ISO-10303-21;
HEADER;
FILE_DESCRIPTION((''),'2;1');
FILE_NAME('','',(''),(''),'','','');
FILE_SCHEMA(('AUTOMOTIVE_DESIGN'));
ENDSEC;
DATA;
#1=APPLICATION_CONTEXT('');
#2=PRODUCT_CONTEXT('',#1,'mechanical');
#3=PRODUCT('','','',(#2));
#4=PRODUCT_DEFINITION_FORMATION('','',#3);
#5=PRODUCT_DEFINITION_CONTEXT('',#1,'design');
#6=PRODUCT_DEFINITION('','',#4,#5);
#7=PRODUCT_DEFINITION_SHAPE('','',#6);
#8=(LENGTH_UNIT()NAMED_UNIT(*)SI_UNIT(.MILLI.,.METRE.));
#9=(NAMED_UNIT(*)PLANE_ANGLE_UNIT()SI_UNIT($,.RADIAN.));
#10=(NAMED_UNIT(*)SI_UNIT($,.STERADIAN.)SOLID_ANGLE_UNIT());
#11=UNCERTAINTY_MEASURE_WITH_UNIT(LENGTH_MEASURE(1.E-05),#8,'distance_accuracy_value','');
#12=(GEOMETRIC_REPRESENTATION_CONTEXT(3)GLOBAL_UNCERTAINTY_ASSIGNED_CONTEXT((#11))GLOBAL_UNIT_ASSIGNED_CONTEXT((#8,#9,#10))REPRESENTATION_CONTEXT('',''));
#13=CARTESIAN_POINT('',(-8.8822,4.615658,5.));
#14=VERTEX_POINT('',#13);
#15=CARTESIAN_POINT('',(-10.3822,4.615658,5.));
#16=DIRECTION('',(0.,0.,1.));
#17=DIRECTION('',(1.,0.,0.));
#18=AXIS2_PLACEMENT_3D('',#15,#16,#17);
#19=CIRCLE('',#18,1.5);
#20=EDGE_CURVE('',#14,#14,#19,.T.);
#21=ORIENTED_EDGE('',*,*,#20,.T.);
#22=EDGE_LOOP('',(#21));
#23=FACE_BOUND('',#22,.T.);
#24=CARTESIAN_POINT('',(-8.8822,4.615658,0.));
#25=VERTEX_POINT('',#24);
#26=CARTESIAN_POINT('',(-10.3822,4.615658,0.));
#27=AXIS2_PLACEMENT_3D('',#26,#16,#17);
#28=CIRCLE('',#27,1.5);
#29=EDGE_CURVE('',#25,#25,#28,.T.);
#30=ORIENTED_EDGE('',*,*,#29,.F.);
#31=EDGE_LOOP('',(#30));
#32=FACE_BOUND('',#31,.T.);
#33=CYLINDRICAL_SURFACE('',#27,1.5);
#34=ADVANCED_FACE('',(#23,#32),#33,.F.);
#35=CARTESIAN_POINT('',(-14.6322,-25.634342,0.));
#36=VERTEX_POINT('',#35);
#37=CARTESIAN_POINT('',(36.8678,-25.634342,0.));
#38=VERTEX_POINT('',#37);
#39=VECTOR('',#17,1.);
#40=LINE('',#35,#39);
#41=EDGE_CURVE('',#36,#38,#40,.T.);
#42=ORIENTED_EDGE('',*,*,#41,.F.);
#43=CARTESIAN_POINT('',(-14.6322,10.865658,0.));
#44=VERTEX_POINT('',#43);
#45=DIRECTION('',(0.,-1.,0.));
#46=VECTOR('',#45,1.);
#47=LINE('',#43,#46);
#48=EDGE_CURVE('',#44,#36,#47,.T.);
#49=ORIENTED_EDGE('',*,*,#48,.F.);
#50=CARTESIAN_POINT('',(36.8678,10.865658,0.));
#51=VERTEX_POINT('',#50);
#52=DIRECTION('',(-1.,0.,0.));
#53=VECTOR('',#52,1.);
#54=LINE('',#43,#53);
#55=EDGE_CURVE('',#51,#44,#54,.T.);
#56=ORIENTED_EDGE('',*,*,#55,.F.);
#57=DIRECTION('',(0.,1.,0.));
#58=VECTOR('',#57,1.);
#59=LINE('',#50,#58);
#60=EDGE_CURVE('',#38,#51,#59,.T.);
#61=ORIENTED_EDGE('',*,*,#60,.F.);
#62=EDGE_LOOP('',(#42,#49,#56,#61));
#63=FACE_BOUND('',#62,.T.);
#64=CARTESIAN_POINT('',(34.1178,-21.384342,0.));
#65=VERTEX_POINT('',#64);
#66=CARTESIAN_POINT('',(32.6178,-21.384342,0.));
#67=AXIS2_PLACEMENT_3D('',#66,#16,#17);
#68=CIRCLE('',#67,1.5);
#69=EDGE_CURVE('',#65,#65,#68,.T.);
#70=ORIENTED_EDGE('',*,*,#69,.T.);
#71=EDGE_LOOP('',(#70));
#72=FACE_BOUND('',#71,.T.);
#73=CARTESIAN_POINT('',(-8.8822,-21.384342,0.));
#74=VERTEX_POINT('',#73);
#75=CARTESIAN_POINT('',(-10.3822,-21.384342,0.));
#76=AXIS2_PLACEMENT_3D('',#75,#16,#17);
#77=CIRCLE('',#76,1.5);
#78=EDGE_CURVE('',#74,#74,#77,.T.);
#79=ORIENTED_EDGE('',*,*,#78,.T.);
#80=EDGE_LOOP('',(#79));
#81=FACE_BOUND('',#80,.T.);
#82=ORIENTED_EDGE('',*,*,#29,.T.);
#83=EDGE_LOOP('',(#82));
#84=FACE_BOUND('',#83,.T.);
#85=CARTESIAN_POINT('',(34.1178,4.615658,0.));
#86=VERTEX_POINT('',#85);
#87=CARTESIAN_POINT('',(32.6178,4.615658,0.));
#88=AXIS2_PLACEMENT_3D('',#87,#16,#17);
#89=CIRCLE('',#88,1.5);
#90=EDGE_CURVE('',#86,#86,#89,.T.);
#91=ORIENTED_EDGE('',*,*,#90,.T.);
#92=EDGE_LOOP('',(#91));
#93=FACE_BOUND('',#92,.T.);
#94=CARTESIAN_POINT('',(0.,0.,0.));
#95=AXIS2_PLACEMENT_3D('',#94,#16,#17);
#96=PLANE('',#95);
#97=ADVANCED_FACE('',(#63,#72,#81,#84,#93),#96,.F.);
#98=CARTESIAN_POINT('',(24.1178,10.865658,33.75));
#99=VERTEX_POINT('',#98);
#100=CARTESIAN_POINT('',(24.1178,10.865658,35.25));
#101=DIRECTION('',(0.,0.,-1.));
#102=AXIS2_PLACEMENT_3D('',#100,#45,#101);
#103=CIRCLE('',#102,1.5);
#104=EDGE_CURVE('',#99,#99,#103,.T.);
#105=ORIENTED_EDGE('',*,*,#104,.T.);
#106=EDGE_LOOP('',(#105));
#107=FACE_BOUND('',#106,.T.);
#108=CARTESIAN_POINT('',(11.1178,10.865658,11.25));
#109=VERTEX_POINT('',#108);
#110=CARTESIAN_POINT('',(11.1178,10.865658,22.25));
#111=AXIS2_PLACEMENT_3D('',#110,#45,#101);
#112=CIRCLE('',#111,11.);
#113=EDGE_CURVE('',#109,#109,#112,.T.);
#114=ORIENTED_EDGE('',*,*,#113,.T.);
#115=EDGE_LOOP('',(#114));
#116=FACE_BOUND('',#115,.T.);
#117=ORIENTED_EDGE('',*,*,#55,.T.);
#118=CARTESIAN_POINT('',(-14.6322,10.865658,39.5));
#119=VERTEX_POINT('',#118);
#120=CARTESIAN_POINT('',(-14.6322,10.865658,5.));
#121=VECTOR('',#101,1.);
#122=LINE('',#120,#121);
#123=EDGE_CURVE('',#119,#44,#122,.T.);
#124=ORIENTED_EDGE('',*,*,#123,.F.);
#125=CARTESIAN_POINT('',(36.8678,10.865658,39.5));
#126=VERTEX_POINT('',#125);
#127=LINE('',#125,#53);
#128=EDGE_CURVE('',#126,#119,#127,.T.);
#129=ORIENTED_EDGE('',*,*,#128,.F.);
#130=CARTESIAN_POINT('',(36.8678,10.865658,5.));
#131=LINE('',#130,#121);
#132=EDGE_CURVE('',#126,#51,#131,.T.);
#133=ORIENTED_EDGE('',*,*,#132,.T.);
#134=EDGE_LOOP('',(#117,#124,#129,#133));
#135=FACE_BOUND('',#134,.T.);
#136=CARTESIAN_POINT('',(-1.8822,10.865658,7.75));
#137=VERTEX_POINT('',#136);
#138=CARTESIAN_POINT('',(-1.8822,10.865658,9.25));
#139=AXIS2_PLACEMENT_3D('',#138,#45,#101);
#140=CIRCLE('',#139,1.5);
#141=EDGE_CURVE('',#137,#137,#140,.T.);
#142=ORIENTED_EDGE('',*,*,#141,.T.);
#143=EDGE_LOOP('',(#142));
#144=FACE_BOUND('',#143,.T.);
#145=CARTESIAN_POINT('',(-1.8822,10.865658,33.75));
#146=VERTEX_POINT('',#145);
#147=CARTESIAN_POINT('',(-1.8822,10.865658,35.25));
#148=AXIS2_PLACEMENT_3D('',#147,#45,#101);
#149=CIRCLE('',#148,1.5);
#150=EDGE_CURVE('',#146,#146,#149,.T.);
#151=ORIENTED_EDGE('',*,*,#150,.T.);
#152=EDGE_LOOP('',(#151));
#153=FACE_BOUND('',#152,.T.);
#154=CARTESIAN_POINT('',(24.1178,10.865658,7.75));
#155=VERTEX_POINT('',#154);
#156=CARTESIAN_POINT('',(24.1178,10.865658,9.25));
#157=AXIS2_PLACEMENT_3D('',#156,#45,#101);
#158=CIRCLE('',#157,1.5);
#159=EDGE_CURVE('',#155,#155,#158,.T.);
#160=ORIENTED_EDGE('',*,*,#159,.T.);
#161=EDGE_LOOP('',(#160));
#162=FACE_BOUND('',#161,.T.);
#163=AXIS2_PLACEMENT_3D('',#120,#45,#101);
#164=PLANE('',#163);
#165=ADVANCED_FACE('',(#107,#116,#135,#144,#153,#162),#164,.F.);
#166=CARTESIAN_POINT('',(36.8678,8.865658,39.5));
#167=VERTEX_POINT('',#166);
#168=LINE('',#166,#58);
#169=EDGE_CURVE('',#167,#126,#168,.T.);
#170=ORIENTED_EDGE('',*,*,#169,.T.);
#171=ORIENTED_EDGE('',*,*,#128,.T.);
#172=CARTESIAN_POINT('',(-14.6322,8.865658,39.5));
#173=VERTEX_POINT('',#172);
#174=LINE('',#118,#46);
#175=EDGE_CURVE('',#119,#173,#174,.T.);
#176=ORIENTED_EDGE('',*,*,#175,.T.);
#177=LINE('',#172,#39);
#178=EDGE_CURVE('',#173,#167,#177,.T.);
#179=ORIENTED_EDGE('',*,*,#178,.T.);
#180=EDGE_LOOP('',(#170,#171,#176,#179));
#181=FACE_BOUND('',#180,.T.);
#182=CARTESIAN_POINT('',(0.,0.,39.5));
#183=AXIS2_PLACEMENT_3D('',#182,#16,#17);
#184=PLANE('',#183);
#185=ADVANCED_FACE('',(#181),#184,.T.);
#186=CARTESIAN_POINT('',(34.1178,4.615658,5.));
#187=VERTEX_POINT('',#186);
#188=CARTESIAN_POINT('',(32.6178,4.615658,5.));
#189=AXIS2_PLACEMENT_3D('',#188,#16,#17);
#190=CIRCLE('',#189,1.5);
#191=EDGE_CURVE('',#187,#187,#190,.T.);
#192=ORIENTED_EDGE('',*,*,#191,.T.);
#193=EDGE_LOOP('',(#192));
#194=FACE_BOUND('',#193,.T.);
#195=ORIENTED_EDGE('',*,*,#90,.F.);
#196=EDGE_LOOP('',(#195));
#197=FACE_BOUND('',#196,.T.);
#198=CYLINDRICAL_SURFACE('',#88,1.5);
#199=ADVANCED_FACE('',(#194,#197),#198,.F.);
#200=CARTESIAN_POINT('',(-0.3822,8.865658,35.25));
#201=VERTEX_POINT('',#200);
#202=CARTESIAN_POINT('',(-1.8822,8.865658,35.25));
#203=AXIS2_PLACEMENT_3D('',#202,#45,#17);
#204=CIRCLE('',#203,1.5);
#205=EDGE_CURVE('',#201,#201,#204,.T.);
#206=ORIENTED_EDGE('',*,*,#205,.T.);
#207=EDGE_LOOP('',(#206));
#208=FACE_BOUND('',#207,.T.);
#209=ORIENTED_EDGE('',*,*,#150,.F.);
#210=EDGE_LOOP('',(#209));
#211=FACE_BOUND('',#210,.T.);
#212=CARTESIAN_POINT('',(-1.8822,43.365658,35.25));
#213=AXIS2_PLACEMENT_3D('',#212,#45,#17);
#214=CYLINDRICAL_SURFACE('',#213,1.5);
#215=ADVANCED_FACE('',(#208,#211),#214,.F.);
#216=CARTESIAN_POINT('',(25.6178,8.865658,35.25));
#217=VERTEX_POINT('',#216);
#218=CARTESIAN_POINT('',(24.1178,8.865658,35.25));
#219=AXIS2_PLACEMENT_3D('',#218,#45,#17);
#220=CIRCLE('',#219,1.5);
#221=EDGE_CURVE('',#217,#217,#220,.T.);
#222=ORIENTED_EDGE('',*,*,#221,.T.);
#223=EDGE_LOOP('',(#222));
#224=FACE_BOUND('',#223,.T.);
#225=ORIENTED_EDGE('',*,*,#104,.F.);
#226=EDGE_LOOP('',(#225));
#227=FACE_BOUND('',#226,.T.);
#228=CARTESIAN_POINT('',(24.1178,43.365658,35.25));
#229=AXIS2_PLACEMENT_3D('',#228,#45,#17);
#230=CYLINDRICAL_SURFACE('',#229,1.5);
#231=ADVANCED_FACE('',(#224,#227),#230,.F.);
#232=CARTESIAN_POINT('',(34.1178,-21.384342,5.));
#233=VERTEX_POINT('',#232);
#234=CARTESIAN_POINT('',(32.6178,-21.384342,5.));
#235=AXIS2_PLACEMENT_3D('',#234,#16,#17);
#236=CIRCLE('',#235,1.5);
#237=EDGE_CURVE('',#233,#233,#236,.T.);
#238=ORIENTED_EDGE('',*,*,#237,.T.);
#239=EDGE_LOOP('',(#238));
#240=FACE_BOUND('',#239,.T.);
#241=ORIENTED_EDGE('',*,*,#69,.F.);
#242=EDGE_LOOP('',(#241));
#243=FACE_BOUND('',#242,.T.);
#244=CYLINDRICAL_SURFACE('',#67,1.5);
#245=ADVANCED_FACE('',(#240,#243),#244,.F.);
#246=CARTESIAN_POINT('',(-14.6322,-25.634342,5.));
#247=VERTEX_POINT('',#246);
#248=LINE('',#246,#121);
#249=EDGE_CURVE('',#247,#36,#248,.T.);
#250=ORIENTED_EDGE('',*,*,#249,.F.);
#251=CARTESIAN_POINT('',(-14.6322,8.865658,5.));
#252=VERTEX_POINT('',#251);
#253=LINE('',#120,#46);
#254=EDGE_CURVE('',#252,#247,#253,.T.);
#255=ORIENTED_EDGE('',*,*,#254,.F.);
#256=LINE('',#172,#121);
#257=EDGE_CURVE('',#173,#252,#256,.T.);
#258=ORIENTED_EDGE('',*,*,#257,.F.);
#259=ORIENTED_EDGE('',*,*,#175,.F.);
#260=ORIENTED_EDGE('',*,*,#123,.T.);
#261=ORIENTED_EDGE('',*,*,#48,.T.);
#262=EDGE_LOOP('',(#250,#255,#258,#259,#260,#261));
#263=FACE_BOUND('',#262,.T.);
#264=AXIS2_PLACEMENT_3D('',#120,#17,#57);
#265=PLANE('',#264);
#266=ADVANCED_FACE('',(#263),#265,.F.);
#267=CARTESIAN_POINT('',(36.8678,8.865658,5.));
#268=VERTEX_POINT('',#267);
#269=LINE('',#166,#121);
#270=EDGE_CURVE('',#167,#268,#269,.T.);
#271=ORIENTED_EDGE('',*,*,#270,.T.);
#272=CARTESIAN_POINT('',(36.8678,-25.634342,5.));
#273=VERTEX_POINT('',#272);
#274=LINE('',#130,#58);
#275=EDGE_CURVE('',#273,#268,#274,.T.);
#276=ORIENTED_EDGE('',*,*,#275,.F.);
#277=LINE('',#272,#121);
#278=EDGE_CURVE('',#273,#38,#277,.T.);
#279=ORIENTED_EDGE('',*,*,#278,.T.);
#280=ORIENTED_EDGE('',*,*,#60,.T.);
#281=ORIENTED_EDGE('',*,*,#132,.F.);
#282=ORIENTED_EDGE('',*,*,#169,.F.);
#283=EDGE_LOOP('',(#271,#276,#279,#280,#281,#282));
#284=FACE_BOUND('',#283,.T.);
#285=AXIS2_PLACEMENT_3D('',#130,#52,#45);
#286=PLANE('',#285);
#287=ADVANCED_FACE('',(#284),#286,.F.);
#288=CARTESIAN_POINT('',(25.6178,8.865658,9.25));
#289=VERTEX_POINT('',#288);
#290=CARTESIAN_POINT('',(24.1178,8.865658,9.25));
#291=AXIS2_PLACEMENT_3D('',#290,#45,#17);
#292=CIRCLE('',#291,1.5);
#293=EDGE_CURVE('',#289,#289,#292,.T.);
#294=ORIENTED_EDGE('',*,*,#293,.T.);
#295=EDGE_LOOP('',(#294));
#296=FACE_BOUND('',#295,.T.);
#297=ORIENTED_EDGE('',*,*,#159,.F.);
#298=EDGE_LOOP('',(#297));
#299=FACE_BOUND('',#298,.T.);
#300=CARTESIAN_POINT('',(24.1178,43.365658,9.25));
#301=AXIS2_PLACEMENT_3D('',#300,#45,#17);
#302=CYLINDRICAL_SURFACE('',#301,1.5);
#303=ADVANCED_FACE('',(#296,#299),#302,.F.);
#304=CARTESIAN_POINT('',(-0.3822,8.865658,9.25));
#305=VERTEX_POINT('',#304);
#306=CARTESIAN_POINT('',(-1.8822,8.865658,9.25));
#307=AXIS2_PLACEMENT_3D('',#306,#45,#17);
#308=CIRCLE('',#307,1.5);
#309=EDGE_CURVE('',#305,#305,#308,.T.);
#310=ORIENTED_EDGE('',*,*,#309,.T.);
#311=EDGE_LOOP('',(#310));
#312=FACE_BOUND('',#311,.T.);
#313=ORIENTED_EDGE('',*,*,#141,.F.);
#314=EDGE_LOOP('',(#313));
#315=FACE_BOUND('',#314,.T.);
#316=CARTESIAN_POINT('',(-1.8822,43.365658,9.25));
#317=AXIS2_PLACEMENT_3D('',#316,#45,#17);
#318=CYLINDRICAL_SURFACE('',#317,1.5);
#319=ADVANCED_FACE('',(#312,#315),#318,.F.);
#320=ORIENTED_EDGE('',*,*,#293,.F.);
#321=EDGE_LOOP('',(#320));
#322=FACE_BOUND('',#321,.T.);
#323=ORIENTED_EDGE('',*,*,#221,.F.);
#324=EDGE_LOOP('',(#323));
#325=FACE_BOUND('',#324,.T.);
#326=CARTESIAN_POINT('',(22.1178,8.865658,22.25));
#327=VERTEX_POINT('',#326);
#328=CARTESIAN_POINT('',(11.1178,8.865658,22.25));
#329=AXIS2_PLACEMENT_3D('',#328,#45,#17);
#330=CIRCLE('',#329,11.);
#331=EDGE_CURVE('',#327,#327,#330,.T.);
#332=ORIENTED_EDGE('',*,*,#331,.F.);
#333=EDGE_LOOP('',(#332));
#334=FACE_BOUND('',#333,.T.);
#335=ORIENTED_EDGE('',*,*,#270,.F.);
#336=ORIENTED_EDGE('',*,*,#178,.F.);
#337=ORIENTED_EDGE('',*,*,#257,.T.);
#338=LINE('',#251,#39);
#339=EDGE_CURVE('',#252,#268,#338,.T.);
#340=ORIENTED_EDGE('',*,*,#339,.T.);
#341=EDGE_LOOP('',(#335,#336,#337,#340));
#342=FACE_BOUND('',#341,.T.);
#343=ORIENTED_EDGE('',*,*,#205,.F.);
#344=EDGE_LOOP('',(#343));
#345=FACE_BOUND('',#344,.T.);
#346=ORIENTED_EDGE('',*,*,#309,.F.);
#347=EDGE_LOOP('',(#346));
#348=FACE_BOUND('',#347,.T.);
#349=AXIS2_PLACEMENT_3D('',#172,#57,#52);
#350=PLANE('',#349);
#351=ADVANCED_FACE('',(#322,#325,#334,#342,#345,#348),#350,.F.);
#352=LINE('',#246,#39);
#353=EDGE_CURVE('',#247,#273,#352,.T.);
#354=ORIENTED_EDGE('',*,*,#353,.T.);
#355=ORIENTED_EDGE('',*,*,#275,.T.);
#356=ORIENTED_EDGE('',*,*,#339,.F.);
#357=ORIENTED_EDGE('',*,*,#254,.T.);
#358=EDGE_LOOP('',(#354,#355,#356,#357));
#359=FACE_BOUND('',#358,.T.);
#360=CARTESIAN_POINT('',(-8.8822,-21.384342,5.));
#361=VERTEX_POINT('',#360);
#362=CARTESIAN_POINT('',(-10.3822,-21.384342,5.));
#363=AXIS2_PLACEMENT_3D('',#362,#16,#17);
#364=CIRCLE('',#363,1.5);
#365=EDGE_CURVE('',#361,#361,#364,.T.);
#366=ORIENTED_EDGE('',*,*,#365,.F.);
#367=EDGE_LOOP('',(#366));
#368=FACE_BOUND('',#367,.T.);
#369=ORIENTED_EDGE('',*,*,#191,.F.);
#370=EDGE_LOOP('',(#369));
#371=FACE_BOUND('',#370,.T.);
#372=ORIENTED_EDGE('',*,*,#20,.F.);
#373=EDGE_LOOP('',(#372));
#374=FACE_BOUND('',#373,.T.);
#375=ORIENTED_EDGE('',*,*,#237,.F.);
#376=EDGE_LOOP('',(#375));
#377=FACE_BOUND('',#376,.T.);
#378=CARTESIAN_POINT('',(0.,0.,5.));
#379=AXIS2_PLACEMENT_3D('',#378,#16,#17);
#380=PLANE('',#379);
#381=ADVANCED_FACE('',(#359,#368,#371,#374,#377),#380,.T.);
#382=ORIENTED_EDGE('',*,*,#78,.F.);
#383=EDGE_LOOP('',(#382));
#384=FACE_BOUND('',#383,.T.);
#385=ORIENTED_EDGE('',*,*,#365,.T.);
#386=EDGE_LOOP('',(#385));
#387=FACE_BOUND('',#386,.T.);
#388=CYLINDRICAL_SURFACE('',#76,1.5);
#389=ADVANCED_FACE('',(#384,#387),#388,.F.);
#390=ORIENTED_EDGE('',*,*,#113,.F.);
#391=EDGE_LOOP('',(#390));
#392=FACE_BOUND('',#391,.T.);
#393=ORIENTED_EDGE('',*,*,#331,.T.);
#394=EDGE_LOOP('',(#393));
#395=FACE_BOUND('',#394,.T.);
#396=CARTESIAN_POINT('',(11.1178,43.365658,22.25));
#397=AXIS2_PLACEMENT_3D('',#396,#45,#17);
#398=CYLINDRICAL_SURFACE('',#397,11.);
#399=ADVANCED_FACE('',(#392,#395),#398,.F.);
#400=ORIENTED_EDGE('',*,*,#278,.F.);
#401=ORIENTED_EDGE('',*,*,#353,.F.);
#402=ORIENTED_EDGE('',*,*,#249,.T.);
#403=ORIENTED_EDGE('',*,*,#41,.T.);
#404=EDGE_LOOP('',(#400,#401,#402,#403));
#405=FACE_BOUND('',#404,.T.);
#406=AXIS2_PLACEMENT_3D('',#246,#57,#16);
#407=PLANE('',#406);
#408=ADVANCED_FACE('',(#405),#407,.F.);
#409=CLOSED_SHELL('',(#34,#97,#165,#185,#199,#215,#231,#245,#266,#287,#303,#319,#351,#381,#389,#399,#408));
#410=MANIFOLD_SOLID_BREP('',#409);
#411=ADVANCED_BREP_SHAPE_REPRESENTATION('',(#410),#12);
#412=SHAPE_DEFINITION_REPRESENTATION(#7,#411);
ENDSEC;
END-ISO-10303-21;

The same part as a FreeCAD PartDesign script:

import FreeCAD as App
import Part
import Sketcher


def add_polygon(sketch, points):
    """Adds a closed chain of lines whose ends are joined by coincident constraints."""
    first, n = sketch.GeometryCount, len(points)
    for a, b in zip(points, points[1:] + points[:1]):
        sketch.addGeometry(Part.LineSegment(App.Vector(*a, 0), App.Vector(*b, 0)), False)
    for i in range(n):
        sketch.addConstraint(Sketcher.Constraint("Coincident", first + i, 2, first + (i + 1) % n, 1))

doc = App.newDocument("Part")
body = doc.addObject("PartDesign::Body", "Body")

sketch1 = body.newObject("Sketcher::SketchObject", "Sketch")
sketch1.AttachmentSupport = (doc.getObject("XY_Plane"), [""])
sketch1.MapMode = "FlatFace"
add_polygon(sketch1, [(-15, 11), (-15, -26), (37, -26), (37, 11)])
sketch1.addConstraint([
    Sketcher.Constraint("Vertical", 0),
    Sketcher.Constraint("Horizontal", 1),
    Sketcher.Constraint("Vertical", 2),
    Sketcher.Constraint("Horizontal", 3),
    Sketcher.Constraint("DistanceX", 1, 1, 1, 2, 51.5),
    Sketcher.Constraint("DistanceY", 0, 2, 0, 1, 36.5),
    Sketcher.Constraint("DistanceX", 0, 2, -1, 1, 14.6322),
    Sketcher.Constraint("DistanceY", 0, 2, -1, 1, 25.634342),
])
pad1 = body.newObject("PartDesign::Pad", "Pad")
pad1.Profile = sketch1
pad1.Length = 5

sketch2 = body.newObject("Sketcher::SketchObject", "Sketch001")
sketch2.AttachmentSupport = (doc.getObject("XY_Plane"), [""])
sketch2.MapMode = "FlatFace"
sketch2.AttachmentOffset = App.Placement(App.Vector(0, 0, 5), App.Rotation())
sketch2.addGeometry([
    Part.Circle(App.Vector(-10.4, 4.6, 0), App.Vector(0, 0, 1), 1.5),
    Part.Circle(App.Vector(-10.4, -21.4, 0), App.Vector(0, 0, 1), 1.5),
    Part.Circle(App.Vector(32.6, -21.4, 0), App.Vector(0, 0, 1), 1.5),
    Part.Circle(App.Vector(32.6, 4.6, 0), App.Vector(0, 0, 1), 1.5),
], False)
sketch2.addConstraint([
    Sketcher.Constraint("Equal", 0, 1),
    Sketcher.Constraint("Equal", 1, 2),
    Sketcher.Constraint("Equal", 2, 3),
    Sketcher.Constraint("Horizontal", 1, 3, 2, 3),
    Sketcher.Constraint("Horizontal", 0, 3, 3, 3),
    Sketcher.Constraint("Vertical", 0, 3, 1, 3),
    Sketcher.Constraint("Vertical", 2, 3, 3, 3),
    Sketcher.Constraint("Diameter", 0, 3.0),
    Sketcher.Constraint("DistanceY", 1, 3, 0, 3, 26.0),
    Sketcher.Constraint("DistanceX", 1, 3, 2, 3, 43.0),
    Sketcher.Constraint("DistanceX", 0, 3, -1, 1, 10.3822),
    Sketcher.Constraint("DistanceY", -1, 1, 0, 3, 4.615658),
])
pocket1 = body.newObject("PartDesign::Pocket", "Pocket")
pocket1.Profile = sketch2
pocket1.Length = 5

sketch3 = body.newObject("Sketcher::SketchObject", "Sketch002")
sketch3.AttachmentSupport = (doc.getObject("XY_Plane"), [""])
sketch3.MapMode = "FlatFace"
sketch3.AttachmentOffset = App.Placement(App.Vector(0, 0, 5), App.Rotation())
add_polygon(sketch3, [(-14.6, 10.9), (-14.6, 8.9), (36.9, 8.9), (36.9, 10.9)])
sketch3.addConstraint([
    Sketcher.Constraint("Vertical", 0),
    Sketcher.Constraint("Horizontal", 1),
    Sketcher.Constraint("Vertical", 2),
    Sketcher.Constraint("Horizontal", 3),
    Sketcher.Constraint("DistanceY", 0, 2, 0, 1, 2.0),
    Sketcher.Constraint("DistanceX", 1, 1, 1, 2, 51.5),
    Sketcher.Constraint("DistanceX", 0, 2, -1, 1, 14.6322),
    Sketcher.Constraint("DistanceY", -1, 1, 0, 2, 8.865658),
])
pad2 = body.newObject("PartDesign::Pad", "Pad001")
pad2.Profile = sketch3
pad2.Length = 34.5

sketch4 = body.newObject("Sketcher::SketchObject", "Sketch003")
sketch4.AttachmentSupport = (doc.getObject("XZ_Plane"), [""])
sketch4.MapMode = "FlatFace"
sketch4.AttachmentOffset = App.Placement(App.Vector(0, 0, -8.865658), App.Rotation())
sketch4.addGeometry([
    Part.Circle(App.Vector(-1.9, 35.2, 0), App.Vector(0, 0, 1), 1.5),
    Part.Circle(App.Vector(24.1, 35.2, 0), App.Vector(0, 0, 1), 1.5),
    Part.Circle(App.Vector(-1.9, 9.2, 0), App.Vector(0, 0, 1), 1.5),
    Part.Circle(App.Vector(24.1, 9.2, 0), App.Vector(0, 0, 1), 1.5),
    Part.Circle(App.Vector(11.1, 22.2, 0), App.Vector(0, 0, 1), 11),
], False)
sketch4.addConstraint([
    Sketcher.Constraint("Equal", 0, 1),
    Sketcher.Constraint("Equal", 1, 2),
    Sketcher.Constraint("Equal", 2, 3),
    Sketcher.Constraint("Horizontal", 0, 3, 1, 3),
    Sketcher.Constraint("Horizontal", 2, 3, 3, 3),
    Sketcher.Constraint("Vertical", 0, 3, 2, 3),
    Sketcher.Constraint("Vertical", 1, 3, 3, 3),
    Sketcher.Constraint("Diameter", 0, 3.0),
    Sketcher.Constraint("Diameter", 4, 22.0),
    Sketcher.Constraint("DistanceX", 0, 3, 1, 3, 26.0),
    Sketcher.Constraint("DistanceY", 2, 3, 0, 3, 26.0),
    Sketcher.Constraint("DistanceX", 0, 3, 4, 3, 13.0),
    Sketcher.Constraint("DistanceY", 4, 3, 0, 3, 13.0),
    Sketcher.Constraint("DistanceY", -1, 1, 0, 3, 35.25),
    Sketcher.Constraint("DistanceX", 0, 3, -1, 1, 1.8822),
])
pocket2 = body.newObject("PartDesign::Pocket", "Pocket001")
pocket2.Profile = sketch4
pocket2.Length = 34.5

doc.recompute()
